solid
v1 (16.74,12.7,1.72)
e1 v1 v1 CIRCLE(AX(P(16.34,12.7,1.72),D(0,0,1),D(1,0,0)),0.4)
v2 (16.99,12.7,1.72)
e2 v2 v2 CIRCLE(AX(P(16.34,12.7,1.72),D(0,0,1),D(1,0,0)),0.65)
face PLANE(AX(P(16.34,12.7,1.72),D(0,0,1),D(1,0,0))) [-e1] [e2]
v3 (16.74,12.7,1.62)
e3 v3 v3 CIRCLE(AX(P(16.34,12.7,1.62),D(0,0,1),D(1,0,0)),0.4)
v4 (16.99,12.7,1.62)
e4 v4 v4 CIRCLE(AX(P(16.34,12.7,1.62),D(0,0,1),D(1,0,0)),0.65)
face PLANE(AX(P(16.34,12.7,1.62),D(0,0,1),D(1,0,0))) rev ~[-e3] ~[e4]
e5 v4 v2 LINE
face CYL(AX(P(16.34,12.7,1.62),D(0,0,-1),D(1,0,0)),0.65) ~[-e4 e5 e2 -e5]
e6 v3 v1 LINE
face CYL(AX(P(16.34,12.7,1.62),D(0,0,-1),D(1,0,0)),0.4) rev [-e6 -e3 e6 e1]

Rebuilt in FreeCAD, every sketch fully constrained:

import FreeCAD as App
import Part
import Sketcher
Q = App.Units.Quantity

doc = App.newDocument("Part")
body = doc.addObject("PartDesign::Body", "Body")

# Sketch on XY plane
sketch1 = doc.addObject("Sketcher::SketchObject", "Sketch")
body.addObject(sketch1)
sketch1.AttachmentSupport = (doc.XY_Plane, [""])
sketch1.MapMode = "FlatFace"
sketch1.AttachmentOffset = App.Placement(App.Vector(0, 0, 1.62), App.Rotation())
sketch1.addGeometry(Part.Circle(App.Vector(0, 0, 0), App.Vector(0, 0, 1), 0.4), False)
sketch1.addConstraint([
    Sketcher.Constraint("Coincident", 0, 3, -1, 1),
    Sketcher.Constraint("Diameter", 0, Q("0.8 mm")),
])
pad1 = doc.addObject("PartDesign::Pad", "Pad")
body.addObject(pad1)
pad1.Profile = sketch1
pad1.Length = 0.1
body2 = doc.addObject("PartDesign::Body", "Body001")

# Sketch on XY plane
sketch2 = doc.addObject("Sketcher::SketchObject", "Sketch001")
body2.addObject(sketch2)
sketch2.AttachmentSupport = (doc.getObject("XY_Plane001"), [""])
sketch2.MapMode = "FlatFace"
sketch2.AttachmentOffset = App.Placement(App.Vector(0, 0, 1.62), App.Rotation())
sketch2.addGeometry(Part.Circle(App.Vector(0, 0, 0), App.Vector(0, 0, 1), 0.7), False)
sketch2.addConstraint([
    Sketcher.Constraint("Coincident", 0, 3, -1, 1),
    Sketcher.Constraint("Diameter", 0, Q("1.3 mm")),
])
pad2 = doc.addObject("PartDesign::Pad", "Pad001")
body2.addObject(pad2)
pad2.Profile = sketch2
pad2.Length = 0.1
doc.recompute()

boolean = doc.addObject("PartDesign::Boolean", "Boolean")
body2.addObject(boolean)
boolean.Type = "Cut"
boolean.addObjects([body])
body3 = doc.addObject("PartDesign::Body", "Body002")
doc.recompute()

body2.Placement = App.Placement(App.Vector(16.34, 12.7, 0), App.Rotation(App.Vector(0, 0, 1), 0))
boolean2 = doc.addObject("PartDesign::Boolean", "Boolean001")
body3.addObject(boolean2)
boolean2.Type = "Fuse"
boolean2.addObjects([body2])

doc.recompute()
